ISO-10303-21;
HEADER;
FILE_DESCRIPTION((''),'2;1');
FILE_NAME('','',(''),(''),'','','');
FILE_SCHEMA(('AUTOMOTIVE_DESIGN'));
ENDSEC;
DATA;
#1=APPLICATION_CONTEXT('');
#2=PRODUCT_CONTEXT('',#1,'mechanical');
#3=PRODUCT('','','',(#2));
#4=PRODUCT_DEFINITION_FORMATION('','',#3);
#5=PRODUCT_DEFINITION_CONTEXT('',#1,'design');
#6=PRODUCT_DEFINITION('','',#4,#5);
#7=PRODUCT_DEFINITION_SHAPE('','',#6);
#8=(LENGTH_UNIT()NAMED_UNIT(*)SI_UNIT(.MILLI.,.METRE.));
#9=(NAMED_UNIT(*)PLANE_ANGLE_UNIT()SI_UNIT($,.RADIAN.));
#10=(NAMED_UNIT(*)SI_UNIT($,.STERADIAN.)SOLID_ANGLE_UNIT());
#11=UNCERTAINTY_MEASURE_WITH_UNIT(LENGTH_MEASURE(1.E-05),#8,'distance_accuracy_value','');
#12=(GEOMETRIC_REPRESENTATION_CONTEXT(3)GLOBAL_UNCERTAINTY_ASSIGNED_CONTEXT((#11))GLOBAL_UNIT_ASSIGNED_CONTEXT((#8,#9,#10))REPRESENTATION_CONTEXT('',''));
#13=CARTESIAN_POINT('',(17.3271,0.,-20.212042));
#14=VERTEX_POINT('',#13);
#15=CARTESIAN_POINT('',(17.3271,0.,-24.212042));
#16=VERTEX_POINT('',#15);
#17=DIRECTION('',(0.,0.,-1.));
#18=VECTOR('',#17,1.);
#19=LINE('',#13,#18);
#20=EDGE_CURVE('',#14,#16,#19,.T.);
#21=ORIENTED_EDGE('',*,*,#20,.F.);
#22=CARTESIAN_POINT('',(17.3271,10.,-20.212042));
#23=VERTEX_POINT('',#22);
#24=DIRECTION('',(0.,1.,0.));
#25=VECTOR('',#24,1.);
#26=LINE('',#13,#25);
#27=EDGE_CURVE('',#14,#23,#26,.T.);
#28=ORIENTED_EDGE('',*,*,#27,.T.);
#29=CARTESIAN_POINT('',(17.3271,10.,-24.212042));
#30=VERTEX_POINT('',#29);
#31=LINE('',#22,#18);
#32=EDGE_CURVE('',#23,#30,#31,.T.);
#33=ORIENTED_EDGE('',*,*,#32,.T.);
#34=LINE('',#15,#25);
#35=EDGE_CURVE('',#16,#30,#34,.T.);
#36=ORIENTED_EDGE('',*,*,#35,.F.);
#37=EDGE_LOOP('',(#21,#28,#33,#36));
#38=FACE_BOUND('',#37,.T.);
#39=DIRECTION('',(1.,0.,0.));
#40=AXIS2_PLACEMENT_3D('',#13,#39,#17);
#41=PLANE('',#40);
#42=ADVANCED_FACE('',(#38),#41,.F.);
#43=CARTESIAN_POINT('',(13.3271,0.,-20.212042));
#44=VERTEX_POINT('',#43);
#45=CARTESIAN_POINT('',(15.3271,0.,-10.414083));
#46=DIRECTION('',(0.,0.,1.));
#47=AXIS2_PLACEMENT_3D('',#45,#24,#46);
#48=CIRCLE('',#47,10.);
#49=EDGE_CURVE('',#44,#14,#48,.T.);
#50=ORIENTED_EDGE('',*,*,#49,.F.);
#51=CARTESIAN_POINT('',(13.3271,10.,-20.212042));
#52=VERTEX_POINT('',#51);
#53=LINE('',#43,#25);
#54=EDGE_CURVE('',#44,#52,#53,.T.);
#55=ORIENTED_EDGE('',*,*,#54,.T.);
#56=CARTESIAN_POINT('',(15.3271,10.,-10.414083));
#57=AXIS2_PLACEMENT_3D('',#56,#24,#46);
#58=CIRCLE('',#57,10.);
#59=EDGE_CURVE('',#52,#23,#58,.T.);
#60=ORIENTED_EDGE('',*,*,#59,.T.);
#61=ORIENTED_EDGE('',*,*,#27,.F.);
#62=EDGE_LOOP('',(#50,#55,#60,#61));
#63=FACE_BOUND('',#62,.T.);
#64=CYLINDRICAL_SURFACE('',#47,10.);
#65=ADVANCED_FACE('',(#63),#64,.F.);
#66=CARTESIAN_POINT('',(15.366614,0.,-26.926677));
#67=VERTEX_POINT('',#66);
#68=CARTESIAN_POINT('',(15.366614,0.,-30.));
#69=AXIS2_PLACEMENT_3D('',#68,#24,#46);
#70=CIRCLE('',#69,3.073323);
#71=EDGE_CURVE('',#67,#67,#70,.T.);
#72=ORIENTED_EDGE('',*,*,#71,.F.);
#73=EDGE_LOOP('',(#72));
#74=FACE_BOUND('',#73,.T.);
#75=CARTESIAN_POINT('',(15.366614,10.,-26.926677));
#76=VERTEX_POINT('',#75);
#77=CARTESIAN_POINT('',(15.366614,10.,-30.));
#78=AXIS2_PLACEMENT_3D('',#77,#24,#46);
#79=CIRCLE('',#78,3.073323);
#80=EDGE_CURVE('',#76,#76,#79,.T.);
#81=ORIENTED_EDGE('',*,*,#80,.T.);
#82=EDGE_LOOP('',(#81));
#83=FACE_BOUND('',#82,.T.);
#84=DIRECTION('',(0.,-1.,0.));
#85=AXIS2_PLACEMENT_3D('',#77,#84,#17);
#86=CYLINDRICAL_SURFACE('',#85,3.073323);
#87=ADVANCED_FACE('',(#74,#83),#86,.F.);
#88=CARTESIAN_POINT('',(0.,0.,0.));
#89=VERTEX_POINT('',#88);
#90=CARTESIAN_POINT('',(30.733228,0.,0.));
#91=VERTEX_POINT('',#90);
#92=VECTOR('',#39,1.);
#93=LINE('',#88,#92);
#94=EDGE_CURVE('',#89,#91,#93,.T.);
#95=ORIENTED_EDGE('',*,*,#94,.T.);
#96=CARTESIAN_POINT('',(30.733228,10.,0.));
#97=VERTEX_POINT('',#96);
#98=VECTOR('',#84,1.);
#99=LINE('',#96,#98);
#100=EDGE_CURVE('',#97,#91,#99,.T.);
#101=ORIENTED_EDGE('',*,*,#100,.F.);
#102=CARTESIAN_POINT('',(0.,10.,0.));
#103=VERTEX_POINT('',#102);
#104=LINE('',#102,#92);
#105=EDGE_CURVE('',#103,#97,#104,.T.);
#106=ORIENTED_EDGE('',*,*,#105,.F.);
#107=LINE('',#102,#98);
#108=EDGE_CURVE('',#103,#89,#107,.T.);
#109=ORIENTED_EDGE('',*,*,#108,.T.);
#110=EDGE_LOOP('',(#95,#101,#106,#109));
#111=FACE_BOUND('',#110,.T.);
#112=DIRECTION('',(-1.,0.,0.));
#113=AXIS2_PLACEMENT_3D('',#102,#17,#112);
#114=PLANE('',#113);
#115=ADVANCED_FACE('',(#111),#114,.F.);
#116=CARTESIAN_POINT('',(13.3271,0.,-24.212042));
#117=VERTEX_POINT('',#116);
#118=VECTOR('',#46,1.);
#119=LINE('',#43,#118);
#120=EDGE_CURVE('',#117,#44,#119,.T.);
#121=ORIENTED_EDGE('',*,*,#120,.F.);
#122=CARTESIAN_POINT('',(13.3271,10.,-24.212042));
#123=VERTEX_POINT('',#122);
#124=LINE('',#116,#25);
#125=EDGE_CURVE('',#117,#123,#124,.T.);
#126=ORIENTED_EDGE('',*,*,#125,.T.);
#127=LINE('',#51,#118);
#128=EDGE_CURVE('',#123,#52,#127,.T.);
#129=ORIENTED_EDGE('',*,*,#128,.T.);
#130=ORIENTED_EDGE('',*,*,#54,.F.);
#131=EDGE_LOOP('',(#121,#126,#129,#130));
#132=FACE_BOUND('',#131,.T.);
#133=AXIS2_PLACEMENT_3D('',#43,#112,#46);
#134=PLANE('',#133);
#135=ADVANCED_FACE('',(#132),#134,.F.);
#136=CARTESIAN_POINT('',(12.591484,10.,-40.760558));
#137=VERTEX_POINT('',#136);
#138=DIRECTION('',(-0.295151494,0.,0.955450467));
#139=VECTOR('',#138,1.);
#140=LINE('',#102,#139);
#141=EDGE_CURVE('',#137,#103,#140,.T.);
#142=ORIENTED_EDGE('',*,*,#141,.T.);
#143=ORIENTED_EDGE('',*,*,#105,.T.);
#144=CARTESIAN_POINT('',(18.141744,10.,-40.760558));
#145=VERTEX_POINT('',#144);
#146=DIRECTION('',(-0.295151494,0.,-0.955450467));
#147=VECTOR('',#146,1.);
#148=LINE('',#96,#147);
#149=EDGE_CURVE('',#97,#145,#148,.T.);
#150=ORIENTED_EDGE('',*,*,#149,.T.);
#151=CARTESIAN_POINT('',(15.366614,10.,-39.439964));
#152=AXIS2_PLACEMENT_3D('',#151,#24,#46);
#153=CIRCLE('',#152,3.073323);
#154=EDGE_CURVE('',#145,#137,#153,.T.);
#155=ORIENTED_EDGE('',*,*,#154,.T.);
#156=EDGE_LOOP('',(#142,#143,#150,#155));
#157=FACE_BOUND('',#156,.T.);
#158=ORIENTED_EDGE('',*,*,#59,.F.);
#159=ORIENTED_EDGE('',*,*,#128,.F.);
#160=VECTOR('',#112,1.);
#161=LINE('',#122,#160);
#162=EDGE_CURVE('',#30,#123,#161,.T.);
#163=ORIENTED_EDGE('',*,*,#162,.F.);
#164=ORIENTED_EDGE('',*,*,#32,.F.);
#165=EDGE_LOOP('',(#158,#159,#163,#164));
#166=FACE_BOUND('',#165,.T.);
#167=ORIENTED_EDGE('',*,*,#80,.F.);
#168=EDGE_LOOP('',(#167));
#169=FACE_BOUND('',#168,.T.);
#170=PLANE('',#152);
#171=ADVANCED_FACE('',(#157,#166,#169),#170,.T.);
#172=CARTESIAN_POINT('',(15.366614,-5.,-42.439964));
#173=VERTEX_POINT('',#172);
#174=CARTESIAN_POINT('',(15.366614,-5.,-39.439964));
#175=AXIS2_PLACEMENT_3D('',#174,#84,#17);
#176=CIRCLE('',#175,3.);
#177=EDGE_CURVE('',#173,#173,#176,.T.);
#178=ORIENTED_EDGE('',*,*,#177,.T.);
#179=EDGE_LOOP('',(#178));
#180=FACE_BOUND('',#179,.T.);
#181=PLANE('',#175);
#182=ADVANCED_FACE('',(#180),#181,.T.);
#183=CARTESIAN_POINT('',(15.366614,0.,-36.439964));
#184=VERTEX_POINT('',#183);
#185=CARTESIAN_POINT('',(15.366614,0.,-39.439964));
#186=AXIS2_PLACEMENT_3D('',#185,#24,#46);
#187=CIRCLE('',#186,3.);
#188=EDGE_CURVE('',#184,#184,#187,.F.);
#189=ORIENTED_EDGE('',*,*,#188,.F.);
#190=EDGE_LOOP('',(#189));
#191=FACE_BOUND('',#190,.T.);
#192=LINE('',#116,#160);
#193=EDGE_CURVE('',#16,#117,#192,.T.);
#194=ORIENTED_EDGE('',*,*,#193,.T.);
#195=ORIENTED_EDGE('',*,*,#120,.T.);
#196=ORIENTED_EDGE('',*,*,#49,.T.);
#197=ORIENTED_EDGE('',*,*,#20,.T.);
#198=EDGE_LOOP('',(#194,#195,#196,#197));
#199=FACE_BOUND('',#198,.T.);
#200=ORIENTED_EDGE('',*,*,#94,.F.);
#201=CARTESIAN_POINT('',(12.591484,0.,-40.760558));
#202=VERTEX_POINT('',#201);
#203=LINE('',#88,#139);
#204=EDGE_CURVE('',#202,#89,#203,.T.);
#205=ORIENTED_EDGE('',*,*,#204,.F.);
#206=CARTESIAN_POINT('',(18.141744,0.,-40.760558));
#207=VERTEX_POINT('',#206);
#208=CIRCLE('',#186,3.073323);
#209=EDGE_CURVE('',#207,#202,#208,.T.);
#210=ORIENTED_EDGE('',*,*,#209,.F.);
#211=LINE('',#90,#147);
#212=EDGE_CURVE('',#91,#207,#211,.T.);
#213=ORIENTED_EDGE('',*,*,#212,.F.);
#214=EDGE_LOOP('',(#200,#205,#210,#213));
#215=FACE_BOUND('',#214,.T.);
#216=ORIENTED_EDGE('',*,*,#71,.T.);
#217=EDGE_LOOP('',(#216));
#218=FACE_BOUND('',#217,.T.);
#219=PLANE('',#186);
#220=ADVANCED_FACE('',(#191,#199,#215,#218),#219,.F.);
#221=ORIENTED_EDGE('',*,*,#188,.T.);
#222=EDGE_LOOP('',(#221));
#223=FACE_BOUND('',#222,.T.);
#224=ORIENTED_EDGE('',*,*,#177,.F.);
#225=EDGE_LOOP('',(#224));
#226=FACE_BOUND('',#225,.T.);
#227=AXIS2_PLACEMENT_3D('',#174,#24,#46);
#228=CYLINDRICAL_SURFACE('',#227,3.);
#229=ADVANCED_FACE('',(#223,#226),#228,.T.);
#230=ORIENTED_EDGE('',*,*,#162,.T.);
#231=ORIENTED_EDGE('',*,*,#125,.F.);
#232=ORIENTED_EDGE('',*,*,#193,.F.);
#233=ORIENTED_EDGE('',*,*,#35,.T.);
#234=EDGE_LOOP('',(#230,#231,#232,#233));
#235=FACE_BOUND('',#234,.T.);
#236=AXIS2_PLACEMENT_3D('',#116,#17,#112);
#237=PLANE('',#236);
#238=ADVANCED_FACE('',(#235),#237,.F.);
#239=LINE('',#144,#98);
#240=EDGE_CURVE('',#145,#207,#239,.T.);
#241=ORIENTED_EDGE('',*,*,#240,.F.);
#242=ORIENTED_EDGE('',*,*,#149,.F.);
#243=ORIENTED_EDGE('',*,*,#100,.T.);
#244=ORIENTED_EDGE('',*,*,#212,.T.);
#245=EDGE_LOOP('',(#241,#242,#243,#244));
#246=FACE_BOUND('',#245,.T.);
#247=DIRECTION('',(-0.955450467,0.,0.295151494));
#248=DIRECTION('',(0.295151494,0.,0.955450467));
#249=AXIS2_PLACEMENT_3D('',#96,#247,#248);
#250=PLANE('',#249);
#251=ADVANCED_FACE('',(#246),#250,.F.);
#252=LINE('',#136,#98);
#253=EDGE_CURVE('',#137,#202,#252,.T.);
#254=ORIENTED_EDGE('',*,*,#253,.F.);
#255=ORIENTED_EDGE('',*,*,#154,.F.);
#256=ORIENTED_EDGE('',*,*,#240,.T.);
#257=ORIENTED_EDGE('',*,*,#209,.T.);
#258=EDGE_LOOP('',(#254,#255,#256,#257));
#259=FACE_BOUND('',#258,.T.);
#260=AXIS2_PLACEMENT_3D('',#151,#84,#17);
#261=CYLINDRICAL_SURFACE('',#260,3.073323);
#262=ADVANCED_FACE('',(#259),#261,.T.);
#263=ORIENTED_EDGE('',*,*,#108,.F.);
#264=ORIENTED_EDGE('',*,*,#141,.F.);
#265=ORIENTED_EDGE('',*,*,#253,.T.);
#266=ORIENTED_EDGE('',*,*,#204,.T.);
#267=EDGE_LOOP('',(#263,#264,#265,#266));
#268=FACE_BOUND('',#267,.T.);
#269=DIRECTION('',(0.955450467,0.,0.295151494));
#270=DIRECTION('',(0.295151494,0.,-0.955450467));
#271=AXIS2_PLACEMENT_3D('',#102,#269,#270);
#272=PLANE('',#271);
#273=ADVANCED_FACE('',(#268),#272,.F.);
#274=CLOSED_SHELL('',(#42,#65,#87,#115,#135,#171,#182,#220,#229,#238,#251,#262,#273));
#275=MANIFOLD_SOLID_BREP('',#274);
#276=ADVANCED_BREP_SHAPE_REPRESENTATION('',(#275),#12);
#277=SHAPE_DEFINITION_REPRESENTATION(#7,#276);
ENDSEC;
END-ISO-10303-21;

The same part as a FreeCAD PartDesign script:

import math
import FreeCAD as App
import Part
import Sketcher
from FreeCAD import Vector
Q = App.Units.Quantity

doc = App.newDocument("Part")
body = doc.addObject("PartDesign::Body", "Body")

# Sketch on XZ plane
sketch1 = doc.addObject("Sketcher::SketchObject", "Sketch")
body.addObject(sketch1)
sketch1.AttachmentSupport = (doc.XZ_Plane, [""])
sketch1.MapMode = "FlatFace"
sketch1.addGeometry([
    Part.LineSegment(Vector(0, 0, 0), Vector(30.7, 0, 0)),  # 0
    Part.LineSegment(Vector(30.7, 0, 0), Vector(18.1, -40.8, 0)),  # 1
    Part.ArcOfCircle(Part.Circle(Vector(15.4, -39.4, 0), Vector(0, 0, 1), 3.1), math.radians(-155), math.radians(-25)),  # 2
    Part.LineSegment(Vector(12.6, -40.8, 0), Vector(0, 0, 0)),  # 3
    Part.Circle(Vector(15.4, -30, 0), Vector(0, 0, 1), 3.1),  # 4
], False)
sketch1.addConstraint([
    Sketcher.Constraint("Coincident", 0, 2, 1, 1),
    Sketcher.Constraint("Coincident", 1, 2, 2, 2),
    Sketcher.Constraint("Coincident", 2, 1, 3, 1),
    Sketcher.Constraint("Coincident", 3, 2, 0, 1),
    Sketcher.Constraint("Horizontal", 0),
    Sketcher.Constraint("Coincident", 3, 2, -1, 1),
    Sketcher.Constraint("Equal", 2, 4),
    Sketcher.Constraint("Horizontal", 1, 2, 2, 1),
    Sketcher.Constraint("Vertical", 2, 3, 4, 3),
    Sketcher.Constraint("Equal", 1, 3),
    Sketcher.Constraint("DistanceY", 4, 3, -1, 1, Q("30 mm")),
    Sketcher.Constraint("Diameter", 4, Q("6.146646 mm")),
    Sketcher.Constraint("DistanceX", 0, 1, 0, 2, Q("30.733228 mm")),
    Sketcher.Constraint("Distance", 1, Q("42.66109 mm")),
    Sketcher.Constraint("DistanceY", 1, 2, -1, 1, Q("40.760558 mm")),
])
pad1 = doc.addObject("PartDesign::Pad", "Pad")
body.addObject(pad1)
pad1.Profile = sketch1
pad1.Length = 10
pad1.Reversed = True

# Sketch on XZ plane
sketch2 = doc.addObject("Sketcher::SketchObject", "Sketch001")
body.addObject(sketch2)
sketch2.AttachmentSupport = (doc.XZ_Plane, [""])
sketch2.MapMode = "FlatFace"
sketch2.addGeometry(Part.Circle(Vector(15.4, -39.4, 0), Vector(0, 0, 1), 3), False)
sketch2.addConstraint([
    Sketcher.Constraint("Diameter", 0, Q("6 mm")),
    Sketcher.Constraint("DistanceX", -1, 1, 0, 3, Q("15.366614 mm")),
    Sketcher.Constraint("DistanceY", 0, 3, -1, 1, Q("39.439964 mm")),
])
pad2 = doc.addObject("PartDesign::Pad", "Pad001")
body.addObject(pad2)
pad2.Profile = sketch2
pad2.Length = 5

# Sketch on XZ plane
sketch3 = doc.addObject("Sketcher::SketchObject", "Sketch002")
body.addObject(sketch3)
sketch3.AttachmentSupport = (doc.XZ_Plane, [""])
sketch3.MapMode = "FlatFace"
sketch3.AttachmentOffset = App.Placement(Vector(0, 0, -10), App.Rotation())
sketch3.addGeometry([
    Part.LineSegment(Vector(13.3, -24.2, 0), Vector(13.3, -20.2, 0)),
    Part.ArcOfCircle(Part.Circle(Vector(15.3, -10.4, 0), Vector(0, 0, 1), 10), math.radians(-78), math.radians(258)),
    Part.LineSegment(Vector(17.3, -20.2, 0), Vector(17.3, -24.2, 0)),
    Part.LineSegment(Vector(17.3, -24.2, 0), Vector(13.3, -24.2, 0)),
], False)
sketch3.addConstraint([
    Sketcher.Constraint("Coincident", 0, 2, 1, 2),
    Sketcher.Constraint("Coincident", 1, 1, 2, 1),
    Sketcher.Constraint("Coincident", 2, 2, 3, 1),
    Sketcher.Constraint("Coincident", 3, 2, 0, 1),
    Sketcher.Constraint("Vertical", 0),
    Sketcher.Constraint("Vertical", 2),
    Sketcher.Constraint("Horizontal", 3),
    Sketcher.Constraint("Horizontal", 0, 2, 1, 1),
    Sketcher.Constraint("Equal", 3, 0),
    Sketcher.Constraint("Radius", 1, Q("10 mm")),
    Sketcher.Constraint("DistanceX", 3, 2, 3, 1, Q("4 mm")),
    Sketcher.Constraint("DistanceX", -1, 1, 1, 3, Q("15.3271 mm")),
    Sketcher.Constraint("DistanceY", 0, 2, -1, 1, Q("20.212042 mm")),
])
pocket1 = doc.addObject("PartDesign::Pocket", "Pocket")
body.addObject(pocket1)
pocket1.Profile = sketch3
pocket1.Length = 10
pocket1.Reversed = True

doc.recompute()
